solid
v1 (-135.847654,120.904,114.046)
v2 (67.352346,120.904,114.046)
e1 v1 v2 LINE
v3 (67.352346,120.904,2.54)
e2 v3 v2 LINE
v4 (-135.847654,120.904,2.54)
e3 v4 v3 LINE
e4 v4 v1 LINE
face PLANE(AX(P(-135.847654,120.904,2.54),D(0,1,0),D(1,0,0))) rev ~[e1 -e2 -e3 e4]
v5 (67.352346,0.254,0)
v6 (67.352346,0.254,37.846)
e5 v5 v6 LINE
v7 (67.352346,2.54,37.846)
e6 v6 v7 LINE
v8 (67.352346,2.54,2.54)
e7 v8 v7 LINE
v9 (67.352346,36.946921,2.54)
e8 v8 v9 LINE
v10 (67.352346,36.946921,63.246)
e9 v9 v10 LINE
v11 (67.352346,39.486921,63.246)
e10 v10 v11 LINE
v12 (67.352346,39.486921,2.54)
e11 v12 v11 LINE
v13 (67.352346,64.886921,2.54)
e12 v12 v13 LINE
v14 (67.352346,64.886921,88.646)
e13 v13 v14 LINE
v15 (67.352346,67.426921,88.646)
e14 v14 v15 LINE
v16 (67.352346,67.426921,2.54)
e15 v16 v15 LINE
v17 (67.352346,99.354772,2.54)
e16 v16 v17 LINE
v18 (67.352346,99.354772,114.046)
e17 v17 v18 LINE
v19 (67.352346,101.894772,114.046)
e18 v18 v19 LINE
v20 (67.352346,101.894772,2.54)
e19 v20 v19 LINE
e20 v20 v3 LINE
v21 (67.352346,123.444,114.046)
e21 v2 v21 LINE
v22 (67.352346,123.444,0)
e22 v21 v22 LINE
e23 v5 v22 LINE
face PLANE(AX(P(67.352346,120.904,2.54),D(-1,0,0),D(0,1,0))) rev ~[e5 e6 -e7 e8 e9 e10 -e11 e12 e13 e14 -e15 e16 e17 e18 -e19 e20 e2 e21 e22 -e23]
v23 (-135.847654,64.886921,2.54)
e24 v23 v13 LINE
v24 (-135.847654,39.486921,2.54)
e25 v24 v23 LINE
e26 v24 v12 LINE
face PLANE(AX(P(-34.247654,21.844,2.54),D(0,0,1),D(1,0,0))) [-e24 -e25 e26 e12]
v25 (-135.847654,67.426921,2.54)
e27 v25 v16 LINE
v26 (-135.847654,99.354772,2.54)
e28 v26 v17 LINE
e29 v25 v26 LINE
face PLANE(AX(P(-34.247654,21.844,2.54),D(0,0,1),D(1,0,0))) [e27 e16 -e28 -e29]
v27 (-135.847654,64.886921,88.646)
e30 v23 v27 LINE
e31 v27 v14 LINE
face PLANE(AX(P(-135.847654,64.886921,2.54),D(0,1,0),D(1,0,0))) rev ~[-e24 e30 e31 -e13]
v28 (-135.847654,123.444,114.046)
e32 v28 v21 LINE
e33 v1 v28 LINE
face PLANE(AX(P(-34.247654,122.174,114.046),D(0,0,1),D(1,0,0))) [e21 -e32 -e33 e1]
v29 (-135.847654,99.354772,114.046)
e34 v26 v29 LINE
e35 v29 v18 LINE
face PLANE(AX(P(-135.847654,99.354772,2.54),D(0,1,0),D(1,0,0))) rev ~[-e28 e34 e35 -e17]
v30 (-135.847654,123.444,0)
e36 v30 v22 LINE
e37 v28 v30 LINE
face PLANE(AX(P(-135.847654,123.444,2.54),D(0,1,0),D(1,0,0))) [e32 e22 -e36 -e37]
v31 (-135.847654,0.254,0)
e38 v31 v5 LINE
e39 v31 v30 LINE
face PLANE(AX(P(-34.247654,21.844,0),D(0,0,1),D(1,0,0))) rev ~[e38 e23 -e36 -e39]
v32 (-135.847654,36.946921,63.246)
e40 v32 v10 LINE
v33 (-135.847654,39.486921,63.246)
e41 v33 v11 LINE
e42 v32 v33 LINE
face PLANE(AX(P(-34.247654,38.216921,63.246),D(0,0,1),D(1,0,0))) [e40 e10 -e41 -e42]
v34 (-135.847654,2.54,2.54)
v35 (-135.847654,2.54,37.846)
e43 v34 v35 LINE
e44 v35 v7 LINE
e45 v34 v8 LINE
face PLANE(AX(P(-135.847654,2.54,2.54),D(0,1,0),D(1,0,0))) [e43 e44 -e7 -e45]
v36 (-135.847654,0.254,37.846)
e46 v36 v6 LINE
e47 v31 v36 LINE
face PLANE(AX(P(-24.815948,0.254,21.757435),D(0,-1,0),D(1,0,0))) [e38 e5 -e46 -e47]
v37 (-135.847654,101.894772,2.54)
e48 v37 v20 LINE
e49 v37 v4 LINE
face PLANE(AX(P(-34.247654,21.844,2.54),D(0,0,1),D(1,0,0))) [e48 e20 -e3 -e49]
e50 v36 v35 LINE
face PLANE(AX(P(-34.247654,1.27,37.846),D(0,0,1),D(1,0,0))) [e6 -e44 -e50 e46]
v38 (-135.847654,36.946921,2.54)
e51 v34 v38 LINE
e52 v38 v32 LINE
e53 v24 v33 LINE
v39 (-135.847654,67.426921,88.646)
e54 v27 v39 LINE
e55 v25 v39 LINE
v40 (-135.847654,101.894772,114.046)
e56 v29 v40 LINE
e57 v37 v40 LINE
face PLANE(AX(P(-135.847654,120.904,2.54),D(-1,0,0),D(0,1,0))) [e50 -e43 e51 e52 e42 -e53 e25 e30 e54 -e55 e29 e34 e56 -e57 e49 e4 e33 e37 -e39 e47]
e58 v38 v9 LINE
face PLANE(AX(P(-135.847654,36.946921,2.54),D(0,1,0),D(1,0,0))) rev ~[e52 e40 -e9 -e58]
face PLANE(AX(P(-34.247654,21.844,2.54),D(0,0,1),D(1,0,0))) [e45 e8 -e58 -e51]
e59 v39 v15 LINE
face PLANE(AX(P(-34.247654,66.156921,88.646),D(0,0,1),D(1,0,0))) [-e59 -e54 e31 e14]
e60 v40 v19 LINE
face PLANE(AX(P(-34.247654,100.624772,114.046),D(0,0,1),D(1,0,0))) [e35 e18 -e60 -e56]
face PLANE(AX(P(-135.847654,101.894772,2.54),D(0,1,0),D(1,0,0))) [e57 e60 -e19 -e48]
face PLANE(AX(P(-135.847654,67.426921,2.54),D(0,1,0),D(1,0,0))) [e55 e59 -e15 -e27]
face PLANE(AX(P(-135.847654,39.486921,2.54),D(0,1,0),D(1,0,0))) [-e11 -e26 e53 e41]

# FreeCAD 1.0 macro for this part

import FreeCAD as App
import Part
import Sketcher

V = App.Vector
Q = App.Units.Quantity


def add_polygon(sketch, points):
    """Adds a closed chain of lines whose ends are joined by coincident constraints."""
    first, n = sketch.GeometryCount, len(points)
    for a, b in zip(points, points[1:] + points[:1]):
        sketch.addGeometry(Part.LineSegment(App.Vector(*a, 0), App.Vector(*b, 0)), False)
    for i in range(n):
        sketch.addConstraint(Sketcher.Constraint("Coincident", first + i, 2, first + (i + 1) % n, 1))

doc = App.newDocument("Part")
body = doc.addObject("PartDesign::Body", "Body")

sketch1 = body.newObject("Sketcher::SketchObject", "Sketch")
sketch1.AttachmentSupport = (doc.getObject("XY_Plane"), [""])
sketch1.MapMode = "FlatFace"
add_polygon(sketch1, [(-136, 123), (-136, -80), (67, -80), (67, 123)])
sketch1.addConstraint([
    Sketcher.Constraint("Vertical", 0),
    Sketcher.Constraint("Horizontal", 1),
    Sketcher.Constraint("Vertical", 2),
    Sketcher.Constraint("Horizontal", 3),
    Sketcher.Constraint("Equal", 3, 0),
    Sketcher.Constraint("DistanceX", 1, 1, 1, 2, Q("8 in")),
    Sketcher.Constraint("DistanceY", 0, 2, -1, 1, Q("3.14 in")),
    Sketcher.Constraint("DistanceX", 0, 2, -1, 1, Q("135.847654 mm")),
])
pad1 = body.newObject("PartDesign::Pad", "Pad")
pad1.Profile = sketch1
pad1.Length = Q("0.1 in")

sketch2 = body.newObject("Sketcher::SketchObject", "Sketch001")
sketch2.AttachmentSupport = (doc.getObject("XY_Plane"), [""])
sketch2.MapMode = "FlatFace"
sketch2.AttachmentOffset = App.Placement(V(0, 0, 0.1 * 25.4), App.Rotation())
add_polygon(sketch2, [(-135.8, 123.4), (-135.8, 120.9), (67.4, 120.9), (67.4, 123.4)])
add_polygon(sketch2, [(-135.8, 101.9), (-135.8, 99.4), (67.4, 99.4), (67.4, 101.9)])
sketch2.addConstraint([
    Sketcher.Constraint("Vertical", 0),
    Sketcher.Constraint("Horizontal", 1),
    Sketcher.Constraint("Vertical", 2),
    Sketcher.Constraint("Horizontal", 3),
    Sketcher.Constraint("Vertical", 4),
    Sketcher.Constraint("Horizontal", 5),
    Sketcher.Constraint("Vertical", 6),
    Sketcher.Constraint("Horizontal", 7),
    Sketcher.Constraint("Vertical", 3, 2, 4, 2),
    Sketcher.Constraint("Vertical", 2, 2, 5, 2),
    Sketcher.Constraint("Equal", 2, 4),
    Sketcher.Constraint("DistanceX", 1, 1, 1, 2, Q("8 in")),
    Sketcher.Constraint("DistanceY", 0, 2, 0, 1, Q("0.1 in")),
    Sketcher.Constraint("DistanceY", -1, 1, 0, 2, Q("4.76 in")),
    Sketcher.Constraint("DistanceY", -1, 1, 4, 2, Q("99.354772 mm")),
    Sketcher.Constraint("DistanceX", 0, 2, -1, 1, Q("135.847654 mm")),
])
pad2 = body.newObject("PartDesign::Pad", "Pad001")
pad2.Profile = sketch2
pad2.Length = Q("4.39 in")

sketch3 = body.newObject("Sketcher::SketchObject", "Sketch002")
sketch3.AttachmentSupport = (doc.getObject("XY_Plane"), [""])
sketch3.MapMode = "FlatFace"
sketch3.AttachmentOffset = App.Placement(V(0, 0, 0.1 * 25.4), App.Rotation())
add_polygon(sketch3, [(-135.8, 67.4), (-135.8, 64.9), (67.4, 64.9), (67.4, 67.4)])
sketch3.addConstraint([
    Sketcher.Constraint("Vertical", 0),
    Sketcher.Constraint("Horizontal", 1),
    Sketcher.Constraint("Vertical", 2),
    Sketcher.Constraint("Horizontal", 3),
    Sketcher.Constraint("DistanceX", 1, 1, 1, 2, Q("8 in")),
    Sketcher.Constraint("DistanceY", 0, 2, 0, 1, Q("0.1 in")),
    Sketcher.Constraint("DistanceY", -1, 1, 0, 2, Q("64.886921 mm")),
    Sketcher.Constraint("DistanceX", 0, 2, -1, 1, Q("135.847654 mm")),
])
pad3 = body.newObject("PartDesign::Pad", "Pad002")
pad3.Profile = sketch3
pad3.Length = Q("3.39 in")

sketch4 = body.newObject("Sketcher::SketchObject", "Sketch003")
sketch4.AttachmentSupport = (doc.getObject("XY_Plane"), [""])
sketch4.MapMode = "FlatFace"
sketch4.AttachmentOffset = App.Placement(V(0, 0, 0.1 * 25.4), App.Rotation())
add_polygon(sketch4, [(-135.8, 39.5), (-135.8, 36.9), (67.4, 36.9), (67.4, 39.5)])
sketch4.addConstraint([
    Sketcher.Constraint("Vertical", 0),
    Sketcher.Constraint("Horizontal", 1),
    Sketcher.Constraint("Vertical", 2),
    Sketcher.Constraint("Horizontal", 3),
    Sketcher.Constraint("DistanceX", 1, 1, 1, 2, Q("8 in")),
    Sketcher.Constraint("DistanceY", 0, 2, 0, 1, Q("0.1 in")),
    Sketcher.Constraint("DistanceY", -1, 1, 0, 2, Q("36.946921 mm")),
    Sketcher.Constraint("DistanceX", 0, 2, -1, 1, Q("135.847654 mm")),
])
pad4 = body.newObject("PartDesign::Pad", "Pad003")
pad4.Profile = sketch4
pad4.Length = Q("2.39 in")

sketch5 = body.newObject("Sketcher::SketchObject", "Sketch004")
sketch5.AttachmentSupport = (doc.getObject("XY_Plane"), [""])
sketch5.MapMode = "FlatFace"
sketch5.AttachmentOffset = App.Placement(V(0, 0, 0.1 * 25.4), App.Rotation())
add_polygon(sketch5, [(-135.8, 2.5), (-135.8, 0), (67.4, 0), (67.4, 2.5)])
sketch5.addConstraint([
    Sketcher.Constraint("Vertical", 0),
    Sketcher.Constraint("Horizontal", 1),
    Sketcher.Constraint("Vertical", 2),
    Sketcher.Constraint("Horizontal", 3),
    Sketcher.Constraint("PointOnObject", 0, 2, -1),
    Sketcher.Constraint("DistanceX", 1, 1, 1, 2, Q("8 in")),
    Sketcher.Constraint("DistanceY", 0, 2, 0, 1, Q("0.1 in")),
    Sketcher.Constraint("DistanceX", 0, 2, -1, 1, Q("135.847654 mm")),
])
pad5 = body.newObject("PartDesign::Pad", "Pad004")
pad5.Profile = sketch5
pad5.Length = Q("1.39 in")

sketch6 = body.newObject("Sketcher::SketchObject", "Sketch005")
sketch6.AttachmentSupport = (doc.getObject("XZ_Plane"), [""])
sketch6.MapMode = "FlatFace"
sketch6.AttachmentOffset = App.Placement(V(0, 0, 3.14 * 25.4), App.Rotation())
add_polygon(sketch6, [(-138, 44), (-138, 0), (89, 0), (89, 44)])
sketch6.addConstraint([
    Sketcher.Constraint("Vertical", 0),
    Sketcher.Constraint("Horizontal", 1),
    Sketcher.Constraint("Vertical", 2),
    Sketcher.Constraint("Horizontal", 3),
    Sketcher.Constraint("PointOnObject", 0, 2, -1),
    Sketcher.Constraint("DistanceY", 0, 2, 0, 1, Q("43.51487 mm")),
    Sketcher.Constraint("DistanceX", 1, 1, 1, 2, Q("227.037744 mm")),
    Sketcher.Constraint("DistanceX", 0, 2, -1, 1, Q("138.33482 mm")),
])
pocket1 = body.newObject("PartDesign::Pocket", "Pocket")
pocket1.Profile = sketch6
pocket1.Length = Q("3.15 in")

doc.recompute()
